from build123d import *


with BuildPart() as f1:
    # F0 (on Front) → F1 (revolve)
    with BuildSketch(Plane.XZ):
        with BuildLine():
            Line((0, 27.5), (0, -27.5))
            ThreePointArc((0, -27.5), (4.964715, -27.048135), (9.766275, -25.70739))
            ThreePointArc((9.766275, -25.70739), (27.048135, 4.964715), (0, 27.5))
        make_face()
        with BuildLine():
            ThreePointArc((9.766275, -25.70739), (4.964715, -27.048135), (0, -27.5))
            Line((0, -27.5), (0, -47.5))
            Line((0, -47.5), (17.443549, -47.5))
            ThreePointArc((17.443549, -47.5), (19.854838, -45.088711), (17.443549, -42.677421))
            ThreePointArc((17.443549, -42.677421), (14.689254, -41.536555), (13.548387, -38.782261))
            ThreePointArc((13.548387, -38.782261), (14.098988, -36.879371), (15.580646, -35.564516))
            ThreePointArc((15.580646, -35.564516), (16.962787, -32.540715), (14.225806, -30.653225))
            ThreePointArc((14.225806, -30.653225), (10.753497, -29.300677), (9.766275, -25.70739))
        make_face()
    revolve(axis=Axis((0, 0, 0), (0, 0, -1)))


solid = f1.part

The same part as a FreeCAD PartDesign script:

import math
import FreeCAD as App
import Part
import Sketcher

V = App.Vector

doc = App.newDocument("Part")
body = doc.addObject("PartDesign::Body", "Body")

# Sketch on XZ plane
sketch1 = body.newObject("Sketcher::SketchObject", "Sketch")
sketch1.AttachmentSupport = (doc.getObject("XZ_Plane"), [""])
sketch1.MapMode = "FlatFace"
sketch1.addGeometry(Part.LineSegment(V(0, 27.5, 0), V(0, -47.5, 0)), False)
sketch1.addGeometry(Part.LineSegment(V(0, -47.5, 0), V(17.443549, -47.5, 0)), False)
sketch1.addGeometry(Part.ArcOfCircle(Part.Circle(V(17.443548, -45.08871, 0), V(0, 0, 1), 2.41129), math.radians(-89.999988), math.radians(89.999988)), False)
sketch1.addGeometry(Part.ArcOfCircle(Part.Circle(V(17.443549, -38.782259, 0), V(0, 0, 1), 3.895162), math.radians(-179.999972), math.radians(-89.999998)), False)
sketch1.addGeometry(Part.ArcOfCircle(Part.Circle(V(17.111895, -38.782259, 0), V(0, 0, 1), 3.563508), math.radians(115.448698), math.radians(180.000039)), False)
sketch1.addGeometry(Part.ArcOfCircle(Part.Circle(V(14.469055, -33.228642, 0), V(0, 0, 1), 2.586879), math.radians(-64.551255), math.radians(95.395601)), False)
sketch1.addGeometry(Part.ArcOfCircle(Part.Circle(V(13.835576, -26.521646, 0), V(0, 0, 1), 4.149967), math.radians(168.684708), math.radians(275.395613)), False)
sketch1.addGeometry(Part.ArcOfCircle(Part.Circle(V(0, 0, 0), V(0, 0, 1), 27.5), math.radians(-69.198142), math.radians(90)), False)
sketch1.addConstraint(Sketcher.Constraint("Coincident", 0, 2, 1, 1))
sketch1.addConstraint(Sketcher.Constraint("Tangent", 1, 2, 2, 1))
sketch1.addConstraint(Sketcher.Constraint("Tangent", 2, 2, 3, 2))
sketch1.addConstraint(Sketcher.Constraint("Tangent", 3, 1, 4, 2))
sketch1.addConstraint(Sketcher.Constraint("Tangent", 4, 1, 5, 1))
sketch1.addConstraint(Sketcher.Constraint("Tangent", 5, 2, 6, 2))
sketch1.addConstraint(Sketcher.Constraint("Coincident", 6, 1, 7, 1))
sketch1.addConstraint(Sketcher.Constraint("Coincident", 7, 2, 0, 1))
sketch1.addConstraint(Sketcher.Constraint("Vertical", 0))
sketch1.addConstraint(Sketcher.Constraint("Horizontal", 1))
sketch1.addConstraint(Sketcher.Constraint("Coincident", 7, 3, -1, 1))
sketch1.addConstraint(Sketcher.Constraint("PointOnObject", 0, 2, -2))
sketch1.addConstraint(Sketcher.Constraint("Horizontal", 3, 3, 4, 3))
sketch1.addConstraint(Sketcher.Constraint("Vertical", 2, 3, 3, 3))
sketch1.addConstraint(Sketcher.Constraint("Radius", 7, 27.5))
sketch1.addConstraint(Sketcher.Constraint("DistanceY", 0, 2, 0, 1, 75.0))
sketch1.addConstraint(Sketcher.Constraint("Radius", 2, 2.41129))
sketch1.addConstraint(Sketcher.Constraint("Radius", 3, 3.895162))
sketch1.addConstraint(Sketcher.Constraint("Radius", 4, 3.563508))
sketch1.addConstraint(Sketcher.Constraint("Radius", 5, 2.586879))
sketch1.addConstraint(Sketcher.Constraint("Radius", 6, 4.149967))
sketch1.addConstraint(Sketcher.Constraint("DistanceX", 1, 1, 1, 2, 17.443549))
sketch1.addConstraint(Sketcher.Constraint("DistanceX", 6, 1, 6, 3, 4.069301))
sketch1.addConstraint(Sketcher.Constraint("DistanceY", 5, 3, -1, 1, 33.228642))
revolution = body.newObject("PartDesign::Revolution", "Revolution")
revolution.Profile = sketch1
revolution.ReferenceAxis = (sketch1, ["V_Axis"])
revolution.Angle = 360

doc.recompute()
